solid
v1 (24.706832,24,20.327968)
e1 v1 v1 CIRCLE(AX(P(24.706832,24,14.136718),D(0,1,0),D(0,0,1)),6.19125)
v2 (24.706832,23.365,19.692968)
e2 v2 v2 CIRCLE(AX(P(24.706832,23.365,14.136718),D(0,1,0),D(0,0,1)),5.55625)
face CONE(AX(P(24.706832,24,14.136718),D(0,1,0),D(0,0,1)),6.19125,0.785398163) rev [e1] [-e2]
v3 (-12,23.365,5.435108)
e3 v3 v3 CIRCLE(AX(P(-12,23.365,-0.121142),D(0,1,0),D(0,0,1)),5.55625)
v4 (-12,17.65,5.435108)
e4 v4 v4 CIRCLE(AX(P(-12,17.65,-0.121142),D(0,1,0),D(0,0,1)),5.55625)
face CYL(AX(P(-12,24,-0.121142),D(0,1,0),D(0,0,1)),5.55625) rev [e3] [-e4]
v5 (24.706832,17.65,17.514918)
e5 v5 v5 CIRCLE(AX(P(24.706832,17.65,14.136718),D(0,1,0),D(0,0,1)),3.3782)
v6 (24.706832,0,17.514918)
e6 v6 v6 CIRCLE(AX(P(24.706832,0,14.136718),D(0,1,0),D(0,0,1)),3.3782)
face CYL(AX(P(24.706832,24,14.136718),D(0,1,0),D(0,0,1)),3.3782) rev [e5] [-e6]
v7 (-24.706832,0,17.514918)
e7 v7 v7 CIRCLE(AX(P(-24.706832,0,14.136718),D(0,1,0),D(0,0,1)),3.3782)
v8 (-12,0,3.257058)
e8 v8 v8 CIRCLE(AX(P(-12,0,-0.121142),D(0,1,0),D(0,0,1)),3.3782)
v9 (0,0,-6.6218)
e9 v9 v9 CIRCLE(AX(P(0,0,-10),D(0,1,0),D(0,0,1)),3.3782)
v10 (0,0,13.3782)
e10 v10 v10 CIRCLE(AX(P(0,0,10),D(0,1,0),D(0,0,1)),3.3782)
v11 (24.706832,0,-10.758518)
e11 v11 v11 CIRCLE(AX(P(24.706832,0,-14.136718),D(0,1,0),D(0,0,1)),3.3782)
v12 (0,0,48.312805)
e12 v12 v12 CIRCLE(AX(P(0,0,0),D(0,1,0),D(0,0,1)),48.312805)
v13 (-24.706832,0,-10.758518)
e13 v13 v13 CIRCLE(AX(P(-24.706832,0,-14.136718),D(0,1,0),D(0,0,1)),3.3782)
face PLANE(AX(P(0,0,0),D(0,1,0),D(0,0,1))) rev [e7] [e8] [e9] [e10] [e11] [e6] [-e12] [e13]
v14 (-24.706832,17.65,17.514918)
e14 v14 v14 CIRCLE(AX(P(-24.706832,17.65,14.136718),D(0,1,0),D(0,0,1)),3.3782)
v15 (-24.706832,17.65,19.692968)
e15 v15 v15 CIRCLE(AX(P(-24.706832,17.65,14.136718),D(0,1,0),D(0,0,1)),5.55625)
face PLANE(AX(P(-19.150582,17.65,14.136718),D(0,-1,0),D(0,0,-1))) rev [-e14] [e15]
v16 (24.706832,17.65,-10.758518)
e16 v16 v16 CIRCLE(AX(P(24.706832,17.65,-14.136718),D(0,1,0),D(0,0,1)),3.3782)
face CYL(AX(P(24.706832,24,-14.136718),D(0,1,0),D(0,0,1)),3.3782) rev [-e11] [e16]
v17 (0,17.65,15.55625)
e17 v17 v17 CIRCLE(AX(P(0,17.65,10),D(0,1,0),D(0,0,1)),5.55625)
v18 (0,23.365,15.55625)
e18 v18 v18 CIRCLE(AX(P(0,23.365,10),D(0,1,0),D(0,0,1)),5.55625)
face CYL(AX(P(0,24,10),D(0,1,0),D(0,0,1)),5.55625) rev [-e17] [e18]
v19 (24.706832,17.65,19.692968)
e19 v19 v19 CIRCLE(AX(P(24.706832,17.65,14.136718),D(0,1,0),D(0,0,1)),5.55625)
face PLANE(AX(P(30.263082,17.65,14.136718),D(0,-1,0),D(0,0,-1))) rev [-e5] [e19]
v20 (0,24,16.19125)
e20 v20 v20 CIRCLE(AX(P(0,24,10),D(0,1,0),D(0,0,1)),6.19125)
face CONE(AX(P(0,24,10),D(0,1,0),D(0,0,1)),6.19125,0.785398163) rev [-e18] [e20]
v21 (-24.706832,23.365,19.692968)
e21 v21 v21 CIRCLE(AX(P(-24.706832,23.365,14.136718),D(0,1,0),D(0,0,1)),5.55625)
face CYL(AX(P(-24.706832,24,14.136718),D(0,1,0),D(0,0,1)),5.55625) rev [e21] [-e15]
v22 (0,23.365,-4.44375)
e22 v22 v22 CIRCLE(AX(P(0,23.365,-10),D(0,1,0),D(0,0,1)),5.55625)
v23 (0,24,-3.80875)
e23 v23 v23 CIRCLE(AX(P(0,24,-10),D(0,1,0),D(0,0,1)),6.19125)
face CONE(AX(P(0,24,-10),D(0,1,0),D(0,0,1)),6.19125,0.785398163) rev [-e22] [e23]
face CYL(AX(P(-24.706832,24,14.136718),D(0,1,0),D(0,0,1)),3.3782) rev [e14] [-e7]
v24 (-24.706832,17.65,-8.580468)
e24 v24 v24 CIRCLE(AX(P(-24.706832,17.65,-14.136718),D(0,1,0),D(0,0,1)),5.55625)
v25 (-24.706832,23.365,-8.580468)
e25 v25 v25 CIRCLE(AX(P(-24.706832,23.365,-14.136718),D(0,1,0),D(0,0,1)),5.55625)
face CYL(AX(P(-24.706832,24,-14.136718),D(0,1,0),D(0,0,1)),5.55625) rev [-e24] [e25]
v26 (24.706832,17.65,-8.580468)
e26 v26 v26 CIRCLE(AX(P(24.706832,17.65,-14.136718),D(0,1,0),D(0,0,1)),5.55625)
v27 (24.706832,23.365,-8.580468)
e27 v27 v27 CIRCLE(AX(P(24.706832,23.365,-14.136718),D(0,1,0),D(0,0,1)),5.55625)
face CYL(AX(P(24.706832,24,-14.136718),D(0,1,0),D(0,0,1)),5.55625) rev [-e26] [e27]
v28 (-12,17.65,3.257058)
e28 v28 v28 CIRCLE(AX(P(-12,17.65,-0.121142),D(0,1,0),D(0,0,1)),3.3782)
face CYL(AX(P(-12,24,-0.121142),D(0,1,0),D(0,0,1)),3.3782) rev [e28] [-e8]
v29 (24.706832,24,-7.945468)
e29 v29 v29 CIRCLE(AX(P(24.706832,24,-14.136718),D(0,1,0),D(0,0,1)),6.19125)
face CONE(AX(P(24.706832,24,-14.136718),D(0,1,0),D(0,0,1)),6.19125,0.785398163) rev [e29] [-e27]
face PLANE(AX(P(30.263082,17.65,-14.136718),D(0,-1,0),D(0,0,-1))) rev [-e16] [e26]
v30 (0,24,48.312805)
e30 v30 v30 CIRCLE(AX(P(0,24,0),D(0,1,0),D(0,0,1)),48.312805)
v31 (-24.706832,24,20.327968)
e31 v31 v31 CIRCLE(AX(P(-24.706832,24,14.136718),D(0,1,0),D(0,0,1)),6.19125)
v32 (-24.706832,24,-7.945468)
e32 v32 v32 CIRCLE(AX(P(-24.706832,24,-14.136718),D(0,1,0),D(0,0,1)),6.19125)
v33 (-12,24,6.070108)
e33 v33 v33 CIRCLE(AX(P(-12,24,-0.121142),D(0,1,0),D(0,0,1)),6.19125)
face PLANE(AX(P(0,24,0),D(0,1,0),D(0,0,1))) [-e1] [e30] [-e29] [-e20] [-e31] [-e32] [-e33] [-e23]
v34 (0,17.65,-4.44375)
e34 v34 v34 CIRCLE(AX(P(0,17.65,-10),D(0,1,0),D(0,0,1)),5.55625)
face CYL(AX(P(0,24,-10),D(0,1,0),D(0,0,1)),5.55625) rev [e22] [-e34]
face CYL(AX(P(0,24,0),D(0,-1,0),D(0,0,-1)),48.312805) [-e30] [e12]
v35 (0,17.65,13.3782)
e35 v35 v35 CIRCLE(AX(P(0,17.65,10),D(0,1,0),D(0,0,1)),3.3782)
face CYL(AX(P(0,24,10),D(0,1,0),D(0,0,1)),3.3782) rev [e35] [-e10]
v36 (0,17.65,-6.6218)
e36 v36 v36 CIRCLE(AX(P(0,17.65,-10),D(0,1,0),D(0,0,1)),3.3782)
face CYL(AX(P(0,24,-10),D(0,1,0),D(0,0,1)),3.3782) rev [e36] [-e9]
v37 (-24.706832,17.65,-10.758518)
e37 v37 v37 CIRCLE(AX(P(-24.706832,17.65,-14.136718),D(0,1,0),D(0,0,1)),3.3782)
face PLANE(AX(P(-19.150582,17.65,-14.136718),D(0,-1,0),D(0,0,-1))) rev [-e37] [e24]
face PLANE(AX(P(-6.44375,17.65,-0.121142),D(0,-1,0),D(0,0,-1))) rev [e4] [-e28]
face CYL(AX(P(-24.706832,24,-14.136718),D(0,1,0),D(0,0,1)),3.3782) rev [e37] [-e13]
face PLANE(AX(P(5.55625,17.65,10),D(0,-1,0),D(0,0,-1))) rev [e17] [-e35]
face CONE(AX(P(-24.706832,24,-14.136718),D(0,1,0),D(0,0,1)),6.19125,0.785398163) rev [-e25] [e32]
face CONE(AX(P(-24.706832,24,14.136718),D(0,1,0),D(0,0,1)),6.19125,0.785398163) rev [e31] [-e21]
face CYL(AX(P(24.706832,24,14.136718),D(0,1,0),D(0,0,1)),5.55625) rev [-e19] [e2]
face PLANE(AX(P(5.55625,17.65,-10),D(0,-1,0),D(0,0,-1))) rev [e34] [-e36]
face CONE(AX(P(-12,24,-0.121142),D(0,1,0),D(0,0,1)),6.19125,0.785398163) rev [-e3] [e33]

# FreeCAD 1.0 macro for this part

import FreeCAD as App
import Part
import Sketcher

V = App.Vector
Q = App.Units.Quantity

doc = App.newDocument("Part")
body = doc.addObject("PartDesign::Body", "Body")

sketch1 = body.newObject("Sketcher::SketchObject", "Sketch")
sketch1.AttachmentSupport = (doc.getObject("XZ_Plane"), [""])
sketch1.MapMode = "FlatFace"
sketch1.addGeometry(Part.Circle(V(0, 0, 0), V(0, 0, 1), 48), False)
sketch1.addConstraint([
    Sketcher.Constraint("Coincident", 0, 3, -1, 1),
    Sketcher.Constraint("Diameter", 0, 96.625609),
])
pad1 = body.newObject("PartDesign::Pad", "Pad")
pad1.Profile = sketch1
pad1.Length = 24
pad1.Reversed = True

sketch2 = body.newObject("Sketcher::SketchObject", "Sketch001")
sketch2.AttachmentSupport = (doc.getObject("YZ_Plane"), [""])
sketch2.MapMode = "FlatFace"
sketch2.addGeometry([
    Part.LineSegment(V(0, 10, 0), V(24, 10, 0)),
    Part.LineSegment(V(24, 10, 0), V(24, 16.2, 0)),
    Part.LineSegment(V(24, 16.2, 0), V(23.4, 15.6, 0)),
    Part.LineSegment(V(23.4, 15.6, 0), V(17.6, 15.6, 0)),
    Part.LineSegment(V(17.6, 15.6, 0), V(17.6, 13.4, 0)),
    Part.LineSegment(V(17.6, 13.4, 0), V(0, 13.4, 0)),
    Part.LineSegment(V(0, 13.4, 0), V(0, 10, 0)),
], False)
sketch2.addGeometry(Part.LineSegment(V(24, 10, 0), V(0, 10, 0)), True)
sketch2.addConstraint([
    Sketcher.Constraint("Coincident", 0, 2, 1, 1),
    Sketcher.Constraint("Coincident", 1, 2, 2, 1),
    Sketcher.Constraint("Coincident", 2, 2, 3, 1),
    Sketcher.Constraint("Coincident", 3, 2, 4, 1),
    Sketcher.Constraint("Coincident", 4, 2, 5, 1),
    Sketcher.Constraint("Coincident", 5, 2, 6, 1),
    Sketcher.Constraint("Coincident", 6, 2, 0, 1),
    Sketcher.Constraint("Horizontal", 0),
    Sketcher.Constraint("Vertical", 1),
    Sketcher.Constraint("Horizontal", 3),
    Sketcher.Constraint("Vertical", 4),
    Sketcher.Constraint("Horizontal", 5),
    Sketcher.Constraint("Vertical", 6),
    Sketcher.Constraint("Horizontal", 7),
    Sketcher.Constraint("Coincident", 7, 1, 0, 2),
    Sketcher.Constraint("PointOnObject", 5, 2, -2),
    Sketcher.Constraint("PointOnObject", 7, 2, -2),
    Sketcher.Constraint("Angle", 2, Q("-135 deg")),
    Sketcher.Constraint("DistanceX", 3, 2, 3, 1, Q("0.225 in")),
    Sketcher.Constraint("DistanceY", 6, 2, 6, 1, Q("0.133 in")),
    Sketcher.Constraint("DistanceX", 3, 2, 1, 2, Q("0.25 in")),
    Sketcher.Constraint("DistanceY", 0, 2, 2, 2, Q("0.21875 in")),
    Sketcher.Constraint("DistanceX", 0, 1, 0, 2, 24.0),
    Sketcher.Constraint("DistanceY", -1, 1, 0, 2, 10.0),
])
groove = body.newObject("PartDesign::Groove", "Groove")
groove.Profile = sketch2
groove.ReferenceAxis = (sketch2, ["Axis0"])
groove.Angle = 360
doc.recompute()

datumline = body.newObject("PartDesign::Line", "DatumLine")
datumline.Placement = App.Placement(V(0, 0, 0), App.Rotation(V(0, 0, 1), V(-0.986271224, 0, 0.165133499)))
linearpattern = body.newObject("PartDesign::LinearPattern", "LinearPattern")
linearpattern.Originals = [groove]
linearpattern.Direction = (datumline, [""])
linearpattern.Mode = "offset"
linearpattern.Offset = 25.050749
linearpattern.Occurrences = 2
body.Tip = linearpattern
doc.recompute()

datumline2 = body.newObject("PartDesign::Line", "DatumLine001")
datumline2.Placement = App.Placement(V(0, 0, 0), App.Rotation(V(0, 0, 1), V(-0.71531159, 0, -0.698805645)))
linearpattern2 = body.newObject("PartDesign::LinearPattern", "LinearPattern001")
linearpattern2.Originals = [groove]
linearpattern2.Direction = (datumline2, [""])
linearpattern2.Mode = "offset"
linearpattern2.Offset = 34.539958
linearpattern2.Occurrences = 2
body.Tip = linearpattern2
doc.recompute()

datumline3 = body.newObject("PartDesign::Line", "DatumLine002")
datumline3.Placement = App.Placement(V(0, 0, 0), App.Rotation(V(0, 0, 1), V(0.71531159, 0, -0.698805645)))
linearpattern3 = body.newObject("PartDesign::LinearPattern", "LinearPattern002")
linearpattern3.Originals = [groove]
linearpattern3.Direction = (datumline3, [""])
linearpattern3.Mode = "offset"
linearpattern3.Offset = 34.539958
linearpattern3.Occurrences = 2
body.Tip = linearpattern3
doc.recompute()

linearpattern4 = body.newObject("PartDesign::LinearPattern", "LinearPattern003")
linearpattern4.Originals = [groove]
linearpattern4.Direction = (doc.getObject("Z_Axis"), [""])
linearpattern4.Mode = "offset"
linearpattern4.Offset = 20
linearpattern4.Occurrences = 2
linearpattern4.Reversed = True
body.Tip = linearpattern4
doc.recompute()

datumline4 = body.newObject("PartDesign::Line", "DatumLine003")
datumline4.Placement = App.Placement(V(0, 0, 0), App.Rotation(V(0, 0, 1), V(0.986271224, 0, 0.165133499)))
linearpattern5 = body.newObject("PartDesign::LinearPattern", "LinearPattern004")
linearpattern5.Originals = [groove]
linearpattern5.Direction = (datumline4, [""])
linearpattern5.Mode = "offset"
linearpattern5.Offset = 25.050749
linearpattern5.Occurrences = 2
body.Tip = linearpattern5
doc.recompute()

datumline5 = body.newObject("PartDesign::Line", "DatumLine004")
datumline5.Placement = App.Placement(V(0, 0, 0), App.Rotation(V(0, 0, 1), V(-0.764412593, 0, -0.644727374)))
linearpattern6 = body.newObject("PartDesign::LinearPattern", "LinearPattern005")
linearpattern6.Originals = [groove]
linearpattern6.Direction = (datumline5, [""])
linearpattern6.Mode = "offset"
linearpattern6.Offset = 15.698329
linearpattern6.Occurrences = 2
body.Tip = linearpattern6

doc.recompute()
